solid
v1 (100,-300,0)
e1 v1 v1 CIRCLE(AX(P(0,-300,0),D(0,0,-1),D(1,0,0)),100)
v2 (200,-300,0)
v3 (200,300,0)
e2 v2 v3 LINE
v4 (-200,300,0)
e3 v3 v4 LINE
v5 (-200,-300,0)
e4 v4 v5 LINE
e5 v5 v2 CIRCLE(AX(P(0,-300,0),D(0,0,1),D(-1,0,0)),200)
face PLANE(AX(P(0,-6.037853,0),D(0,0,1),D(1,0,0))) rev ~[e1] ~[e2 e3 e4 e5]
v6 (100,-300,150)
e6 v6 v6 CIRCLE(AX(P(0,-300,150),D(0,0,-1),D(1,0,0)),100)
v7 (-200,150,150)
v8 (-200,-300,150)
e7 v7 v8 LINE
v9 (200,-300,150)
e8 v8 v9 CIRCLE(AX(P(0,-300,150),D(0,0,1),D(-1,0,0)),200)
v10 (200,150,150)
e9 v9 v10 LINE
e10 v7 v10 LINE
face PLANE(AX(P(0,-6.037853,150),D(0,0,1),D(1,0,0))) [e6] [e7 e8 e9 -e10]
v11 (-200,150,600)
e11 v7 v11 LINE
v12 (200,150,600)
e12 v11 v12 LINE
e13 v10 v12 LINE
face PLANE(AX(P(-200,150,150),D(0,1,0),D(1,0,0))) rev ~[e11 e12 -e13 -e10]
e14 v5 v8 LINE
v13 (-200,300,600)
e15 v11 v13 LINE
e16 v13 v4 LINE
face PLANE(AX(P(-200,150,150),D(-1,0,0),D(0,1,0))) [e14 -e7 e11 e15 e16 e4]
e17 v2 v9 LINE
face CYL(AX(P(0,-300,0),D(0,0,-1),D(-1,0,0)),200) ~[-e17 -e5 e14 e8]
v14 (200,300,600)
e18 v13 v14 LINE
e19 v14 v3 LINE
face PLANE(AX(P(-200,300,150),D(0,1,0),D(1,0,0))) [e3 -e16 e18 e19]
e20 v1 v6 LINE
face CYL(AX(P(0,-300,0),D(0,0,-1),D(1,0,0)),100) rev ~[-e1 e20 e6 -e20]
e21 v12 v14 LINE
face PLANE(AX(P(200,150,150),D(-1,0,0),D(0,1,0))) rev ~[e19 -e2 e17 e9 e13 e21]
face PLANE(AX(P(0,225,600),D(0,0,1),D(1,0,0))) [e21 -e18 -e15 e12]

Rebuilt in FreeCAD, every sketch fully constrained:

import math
import FreeCAD as App
import Part
import Sketcher

V = App.Vector

doc = App.newDocument("Part")
body = doc.addObject("PartDesign::Body", "Body")

sketch1 = body.newObject("Sketcher::SketchObject", "Sketch")
sketch1.AttachmentSupport = (doc.getObject("XY_Plane"), [""])
sketch1.MapMode = "FlatFace"
sketch1.addGeometry([
    Part.LineSegment(V(200, -300, 0), V(200, 300, 0)),
    Part.LineSegment(V(200, 300, 0), V(-200, 300, 0)),
    Part.LineSegment(V(-200, 300, 0), V(-200, -300, 0)),
    Part.ArcOfCircle(Part.Circle(V(0, -300, 0), V(0, 0, 1), 200), math.radians(180), math.radians(360)),
    Part.Circle(V(0, -300, 0), V(0, 0, 1), 100),
], False)
sketch1.addConstraint([
    Sketcher.Constraint("Coincident", 0, 2, 1, 1),
    Sketcher.Constraint("Coincident", 1, 2, 2, 1),
    Sketcher.Constraint("Tangent", 2, 2, 3, 1),
    Sketcher.Constraint("Tangent", 3, 2, 0, 1),
    Sketcher.Constraint("Vertical", 0),
    Sketcher.Constraint("Horizontal", 1),
    Sketcher.Constraint("Vertical", 2),
    Sketcher.Constraint("Coincident", 4, 3, 3, 3),
    Sketcher.Constraint("Symmetric", 0, 2, 2, 2, -1, 1),
    Sketcher.Constraint("Diameter", 4, 200.0),
    Sketcher.Constraint("Radius", 3, 200.0),
    Sketcher.Constraint("DistanceY", 0, 1, 0, 2, 600.0),
])
pad1 = body.newObject("PartDesign::Pad", "Pad")
pad1.Profile = sketch1
pad1.Length = 150

sketch2 = body.newObject("Sketcher::SketchObject", "Sketch001")
sketch2.AttachmentSupport = (doc.getObject("XY_Plane"), [""])
sketch2.MapMode = "FlatFace"
sketch2.AttachmentOffset = App.Placement(V(0, 0, 150), App.Rotation())
sketch2.addGeometry([
    Part.LineSegment(V(-200, 300, 0), V(-200, 150, 0)),
    Part.LineSegment(V(-200, 150, 0), V(200, 150, 0)),
    Part.LineSegment(V(200, 150, 0), V(200, 300, 0)),
    Part.LineSegment(V(200, 300, 0), V(-200, 300, 0)),
], False)
sketch2.addConstraint([
    Sketcher.Constraint("Coincident", 0, 2, 1, 1),
    Sketcher.Constraint("Coincident", 1, 2, 2, 1),
    Sketcher.Constraint("Coincident", 2, 2, 3, 1),
    Sketcher.Constraint("Coincident", 3, 2, 0, 1),
    Sketcher.Constraint("Vertical", 0),
    Sketcher.Constraint("Horizontal", 1),
    Sketcher.Constraint("Vertical", 2),
    Sketcher.Constraint("Horizontal", 3),
    Sketcher.Constraint("DistanceX", 1, 1, 1, 2, 400.0),
    Sketcher.Constraint("DistanceY", 0, 2, 0, 1, 150.0),
    Sketcher.Constraint("DistanceX", 0, 2, -1, 1, 200.0),
    Sketcher.Constraint("DistanceY", -1, 1, 0, 2, 150.0),
])
pad2 = body.newObject("PartDesign::Pad", "Pad001")
pad2.Profile = sketch2
pad2.Length = 450

doc.recompute()
